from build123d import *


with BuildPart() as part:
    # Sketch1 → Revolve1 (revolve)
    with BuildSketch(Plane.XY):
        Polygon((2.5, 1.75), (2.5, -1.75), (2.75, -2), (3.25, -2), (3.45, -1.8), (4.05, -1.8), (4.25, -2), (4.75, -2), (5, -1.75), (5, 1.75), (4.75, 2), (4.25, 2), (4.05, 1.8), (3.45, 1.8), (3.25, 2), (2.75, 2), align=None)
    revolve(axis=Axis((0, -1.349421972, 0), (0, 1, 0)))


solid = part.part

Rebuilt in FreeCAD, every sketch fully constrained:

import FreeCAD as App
import Part
import Sketcher
Q = App.Units.Quantity

doc = App.newDocument("Part")
body = doc.addObject("PartDesign::Body", "Body")

sketch1 = body.newObject("Sketcher::SketchObject", "Sketch")
sketch1.AttachmentSupport = (doc.getObject("XY_Plane"), [""])
sketch1.MapMode = "FlatFace"
sketch1.addGeometry(Part.LineSegment(App.Vector(2.5, 1.75, 0), App.Vector(2.5, -1.75, 0)), False)
sketch1.addGeometry(Part.LineSegment(App.Vector(2.5, -1.75, 0), App.Vector(2.75, -2, 0)), False)
sketch1.addGeometry(Part.LineSegment(App.Vector(2.75, -2, 0), App.Vector(3.25, -2, 0)), False)
sketch1.addGeometry(Part.LineSegment(App.Vector(3.25, -2, 0), App.Vector(3.45, -1.8, 0)), False)
sketch1.addGeometry(Part.LineSegment(App.Vector(3.45, -1.8, 0), App.Vector(4.05, -1.8, 0)), False)
sketch1.addGeometry(Part.LineSegment(App.Vector(4.05, -1.8, 0), App.Vector(4.25, -2, 0)), False)
sketch1.addGeometry(Part.LineSegment(App.Vector(4.25, -2, 0), App.Vector(4.75, -2, 0)), False)
sketch1.addGeometry(Part.LineSegment(App.Vector(4.75, -2, 0), App.Vector(5, -1.75, 0)), False)
sketch1.addGeometry(Part.LineSegment(App.Vector(5, -1.75, 0), App.Vector(5, 1.75, 0)), False)
sketch1.addGeometry(Part.LineSegment(App.Vector(5, 1.75, 0), App.Vector(4.75, 2, 0)), False)
sketch1.addGeometry(Part.LineSegment(App.Vector(4.75, 2, 0), App.Vector(4.25, 2, 0)), False)
sketch1.addGeometry(Part.LineSegment(App.Vector(4.25, 2, 0), App.Vector(4.05, 1.8, 0)), False)
sketch1.addGeometry(Part.LineSegment(App.Vector(4.05, 1.8, 0), App.Vector(3.45, 1.8, 0)), False)
sketch1.addGeometry(Part.LineSegment(App.Vector(3.45, 1.8, 0), App.Vector(3.25, 2, 0)), False)
sketch1.addGeometry(Part.LineSegment(App.Vector(3.25, 2, 0), App.Vector(2.75, 2, 0)), False)
sketch1.addGeometry(Part.LineSegment(App.Vector(2.75, 2, 0), App.Vector(2.5, 1.75, 0)), False)
sketch1.addConstraint(Sketcher.Constraint("Coincident", 0, 2, 1, 1))
sketch1.addConstraint(Sketcher.Constraint("Coincident", 1, 2, 2, 1))
sketch1.addConstraint(Sketcher.Constraint("Coincident", 2, 2, 3, 1))
sketch1.addConstraint(Sketcher.Constraint("Coincident", 3, 2, 4, 1))
sketch1.addConstraint(Sketcher.Constraint("Coincident", 4, 2, 5, 1))
sketch1.addConstraint(Sketcher.Constraint("Coincident", 5, 2, 6, 1))
sketch1.addConstraint(Sketcher.Constraint("Coincident", 6, 2, 7, 1))
sketch1.addConstraint(Sketcher.Constraint("Coincident", 7, 2, 8, 1))
sketch1.addConstraint(Sketcher.Constraint("Coincident", 8, 2, 9, 1))
sketch1.addConstraint(Sketcher.Constraint("Coincident", 9, 2, 10, 1))
sketch1.addConstraint(Sketcher.Constraint("Coincident", 10, 2, 11, 1))
sketch1.addConstraint(Sketcher.Constraint("Coincident", 11, 2, 12, 1))
sketch1.addConstraint(Sketcher.Constraint("Coincident", 12, 2, 13, 1))
sketch1.addConstraint(Sketcher.Constraint("Coincident", 13, 2, 14, 1))
sketch1.addConstraint(Sketcher.Constraint("Coincident", 14, 2, 15, 1))
sketch1.addConstraint(Sketcher.Constraint("Coincident", 15, 2, 0, 1))
sketch1.addConstraint(Sketcher.Constraint("Vertical", 0))
sketch1.addConstraint(Sketcher.Constraint("Horizontal", 2))
sketch1.addConstraint(Sketcher.Constraint("Horizontal", 4))
sketch1.addConstraint(Sketcher.Constraint("Horizontal", 6))
sketch1.addConstraint(Sketcher.Constraint("Vertical", 8))
sketch1.addConstraint(Sketcher.Constraint("Horizontal", 10))
sketch1.addConstraint(Sketcher.Constraint("Horizontal", 12))
sketch1.addConstraint(Sketcher.Constraint("Horizontal", 14))
sketch1.addConstraint(Sketcher.Constraint("Symmetric", 6, 2, 9, 2, -1))
sketch1.addConstraint(Sketcher.Constraint("Symmetric", 4, 2, 11, 2, -1))
sketch1.addConstraint(Sketcher.Constraint("Symmetric", 2, 2, 13, 2, -1))
sketch1.addConstraint(Sketcher.Constraint("Perpendicular", 1, 3))
sketch1.addConstraint(Sketcher.Constraint("Perpendicular", 3, 5))
sketch1.addConstraint(Sketcher.Constraint("Perpendicular", 5, 7))
sketch1.addConstraint(Sketcher.Constraint("Perpendicular", 7, 9))
sketch1.addConstraint(Sketcher.Constraint("Perpendicular", 9, 11))
sketch1.addConstraint(Sketcher.Constraint("Perpendicular", 11, 13))
sketch1.addConstraint(Sketcher.Constraint("Perpendicular", 13, 15))
sketch1.addConstraint(Sketcher.Constraint("Horizontal", 2, 2, 5, 2))
sketch1.addConstraint(Sketcher.Constraint("Horizontal", 0, 2, 7, 2))
sketch1.addConstraint(Sketcher.Constraint("Horizontal", 8, 2, 15, 2))
sketch1.addConstraint(Sketcher.Constraint("Vertical", 5, 2, 10, 2))
sketch1.addConstraint(Sketcher.Constraint("Equal", 2, 6))
sketch1.addConstraint(Sketcher.Constraint("DistanceX", 2, 1, 2, 2, Q("0.5 mm")))
sketch1.addConstraint(Sketcher.Constraint("DistanceX", 4, 1, 4, 2, Q("0.6 mm")))
sketch1.addConstraint(Sketcher.Constraint("DistanceY", 0, 2, 0, 1, Q("3.5 mm")))
sketch1.addConstraint(Sketcher.Constraint("DistanceY", 1, 2, -1, 1, Q("2 mm")))
sketch1.addConstraint(Sketcher.Constraint("DistanceX", -1, 1, 7, 2, Q("5 mm")))
sketch1.addConstraint(Sketcher.Constraint("DistanceX", 2, 2, 5, 2, Q("1 mm")))
revolution = body.newObject("PartDesign::Revolution", "Revolution")
revolution.Profile = sketch1
revolution.ReferenceAxis = (sketch1, ["V_Axis"])
revolution.Angle = 360

doc.recompute()
